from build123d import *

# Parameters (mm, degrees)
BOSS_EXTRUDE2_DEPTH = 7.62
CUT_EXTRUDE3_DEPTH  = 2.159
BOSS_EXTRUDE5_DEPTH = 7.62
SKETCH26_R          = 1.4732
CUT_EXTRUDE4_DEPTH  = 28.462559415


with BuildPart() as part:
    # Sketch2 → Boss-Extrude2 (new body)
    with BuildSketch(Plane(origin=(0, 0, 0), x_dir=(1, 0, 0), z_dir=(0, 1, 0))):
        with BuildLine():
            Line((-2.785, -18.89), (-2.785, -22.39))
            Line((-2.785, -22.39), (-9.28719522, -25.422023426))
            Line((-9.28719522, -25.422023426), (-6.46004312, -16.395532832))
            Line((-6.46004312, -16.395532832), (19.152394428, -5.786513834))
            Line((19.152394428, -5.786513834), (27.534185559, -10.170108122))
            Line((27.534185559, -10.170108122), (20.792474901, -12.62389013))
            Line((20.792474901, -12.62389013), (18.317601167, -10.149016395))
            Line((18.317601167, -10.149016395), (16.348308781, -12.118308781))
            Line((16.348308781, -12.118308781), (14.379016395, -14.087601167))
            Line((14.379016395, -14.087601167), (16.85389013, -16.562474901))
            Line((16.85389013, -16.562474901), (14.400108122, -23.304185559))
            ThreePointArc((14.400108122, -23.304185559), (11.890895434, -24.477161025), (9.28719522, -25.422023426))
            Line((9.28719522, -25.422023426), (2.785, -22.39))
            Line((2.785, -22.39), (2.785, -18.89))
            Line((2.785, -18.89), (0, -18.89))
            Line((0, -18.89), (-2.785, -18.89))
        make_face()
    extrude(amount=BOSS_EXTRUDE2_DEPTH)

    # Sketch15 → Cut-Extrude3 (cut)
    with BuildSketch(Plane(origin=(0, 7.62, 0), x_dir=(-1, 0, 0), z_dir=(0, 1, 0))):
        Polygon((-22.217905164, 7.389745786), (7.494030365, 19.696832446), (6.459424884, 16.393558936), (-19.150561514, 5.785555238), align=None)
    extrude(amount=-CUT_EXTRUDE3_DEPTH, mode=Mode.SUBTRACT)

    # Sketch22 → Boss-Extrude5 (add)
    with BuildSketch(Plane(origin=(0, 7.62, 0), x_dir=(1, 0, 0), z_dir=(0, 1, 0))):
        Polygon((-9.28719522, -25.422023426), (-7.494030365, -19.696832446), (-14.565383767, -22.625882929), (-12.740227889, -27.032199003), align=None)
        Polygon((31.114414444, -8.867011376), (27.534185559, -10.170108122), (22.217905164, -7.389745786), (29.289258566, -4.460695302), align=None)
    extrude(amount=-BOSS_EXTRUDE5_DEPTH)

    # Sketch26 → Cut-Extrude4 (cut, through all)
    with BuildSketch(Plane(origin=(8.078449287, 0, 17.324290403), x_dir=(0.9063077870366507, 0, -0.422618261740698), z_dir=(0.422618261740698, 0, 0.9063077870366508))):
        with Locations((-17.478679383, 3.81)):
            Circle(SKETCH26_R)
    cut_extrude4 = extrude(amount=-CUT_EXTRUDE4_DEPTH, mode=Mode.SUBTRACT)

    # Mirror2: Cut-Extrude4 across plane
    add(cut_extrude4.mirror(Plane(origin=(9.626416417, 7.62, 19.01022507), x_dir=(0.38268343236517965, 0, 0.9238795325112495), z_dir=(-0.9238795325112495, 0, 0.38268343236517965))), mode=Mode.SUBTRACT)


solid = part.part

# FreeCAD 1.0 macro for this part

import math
import FreeCAD as App
import Part
import Sketcher
from FreeCAD import Vector
Q = App.Units.Quantity

doc = App.newDocument("Part")
body = doc.addObject("PartDesign::Body", "Body")

sketch1 = body.newObject("Sketcher::SketchObject", "Sketch")
sketch1.AttachmentSupport = (doc.getObject("XZ_Plane"), [""])
sketch1.MapMode = "FlatFace"
sketch1.addGeometry([
    Part.LineSegment(Vector(-2.8, 22.4, 0), Vector(-2.8, 18.9, 0)),
    Part.LineSegment(Vector(-2.8, 18.9, 0), Vector(2.8, 18.9, 0)),
    Part.LineSegment(Vector(2.8, 18.9, 0), Vector(2.8, 22.4, 0)),
    Part.LineSegment(Vector(2.8, 22.4, 0), Vector(9.3, 25.4, 0)),
    Part.ArcOfCircle(Part.Circle(Vector(0, -4.2, 0), Vector(0, 0, 1), 31.1), math.radians(62.39), math.radians(72.61)),
    Part.LineSegment(Vector(14.4, 23.3, 0), Vector(16.9, 16.6, 0)),
    Part.LineSegment(Vector(16.9, 16.6, 0), Vector(14.4, 14.1, 0)),
    Part.LineSegment(Vector(14.4, 14.1, 0), Vector(18.3, 10.1, 0)),
    Part.LineSegment(Vector(18.3, 10.1, 0), Vector(20.8, 12.6, 0)),
    Part.LineSegment(Vector(20.8, 12.6, 0), Vector(27.5, 10.2, 0)),
    Part.LineSegment(Vector(27.5, 10.2, 0), Vector(19.2, 5.8, 0)),
    Part.LineSegment(Vector(19.2, 5.8, 0), Vector(-6.5, 16.4, 0)),
    Part.LineSegment(Vector(-6.5, 16.4, 0), Vector(-9.3, 25.4, 0)),
    Part.LineSegment(Vector(-9.3, 25.4, 0), Vector(-2.8, 22.4, 0)),
], False)
sketch1.addConstraint([
    Sketcher.Constraint("Coincident", 0, 2, 1, 1),
    Sketcher.Constraint("Coincident", 1, 2, 2, 1),
    Sketcher.Constraint("Coincident", 2, 2, 3, 1),
    Sketcher.Constraint("Coincident", 3, 2, 4, 2),
    Sketcher.Constraint("Coincident", 4, 1, 5, 1),
    Sketcher.Constraint("Coincident", 5, 2, 6, 1),
    Sketcher.Constraint("Coincident", 6, 2, 7, 1),
    Sketcher.Constraint("Coincident", 7, 2, 8, 1),
    Sketcher.Constraint("Coincident", 8, 2, 9, 1),
    Sketcher.Constraint("Coincident", 9, 2, 10, 1),
    Sketcher.Constraint("Coincident", 10, 2, 11, 1),
    Sketcher.Constraint("Coincident", 11, 2, 12, 1),
    Sketcher.Constraint("Coincident", 12, 2, 13, 1),
    Sketcher.Constraint("Coincident", 13, 2, 0, 1),
    Sketcher.Constraint("Vertical", 0),
    Sketcher.Constraint("Horizontal", 1),
    Sketcher.Constraint("Vertical", 2),
    Sketcher.Constraint("Symmetric", 3, 2, 12, 2, -2),
    Sketcher.Constraint("Symmetric", 2, 2, 13, 2, -2),
    Sketcher.Constraint("PointOnObject", 4, 3, -2),
    Sketcher.Constraint("Perpendicular", 6, 7),
    Sketcher.Constraint("Perpendicular", 7, 8),
    Sketcher.Constraint("Equal", 3, 5),
    Sketcher.Constraint("Equal", 6, 8),
    Sketcher.Constraint("Equal", 5, 9),
    Sketcher.Constraint("Equal", 10, 12),
    Sketcher.Constraint("Angle", 3, Q("25 deg")),
    Sketcher.Constraint("Angle", 5, Q("-70 deg")),
    Sketcher.Constraint("Angle", 6, Q("-135 deg")),
    Sketcher.Constraint("Angle", 9, Q("-20 deg")),
    Sketcher.Constraint("Angle", 11, Q("157.5 deg")),
    Sketcher.Constraint("DistanceX", 1, 1, 1, 2, Q("5.57 mm")),
    Sketcher.Constraint("DistanceY", 0, 2, 0, 1, Q("3.5 mm")),
    Sketcher.Constraint("Radius", 4, Q("31.072407 mm")),
    Sketcher.Constraint("Distance", 6, Q("3.5 mm")),
    Sketcher.Constraint("Distance", 7, Q("5.57 mm")),
    Sketcher.Constraint("DistanceY", 4, 3, -1, 1, Q("4.23 mm")),
    Sketcher.Constraint("DistanceY", -1, 1, 0, 2, Q("18.89 mm")),
    Sketcher.Constraint("DistanceY", -1, 1, 6, 2, Q("14.087601 mm")),
    Sketcher.Constraint("DistanceX", 10, 2, 8, 2, Q("1.64008 mm")),
    Sketcher.Constraint("DistanceY", 10, 2, 5, 2, Q("10.775961 mm")),
])
pad1 = body.newObject("PartDesign::Pad", "Pad")
pad1.Profile = sketch1
pad1.Length = Q("0.3 in")
pad1.Reversed = True

sketch2 = body.newObject("Sketcher::SketchObject", "Sketch001")
sketch2.AttachmentSupport = (doc.getObject("XZ_Plane"), [""])
sketch2.MapMode = "FlatFace"
sketch2.AttachmentOffset = App.Placement(Vector(0, 0, -0.3 * 25.4), App.Rotation())
sketch2.addGeometry([
    Part.LineSegment(Vector(-7.5, 19.7, 0), Vector(22.2, 7.4, 0)),
    Part.LineSegment(Vector(22.2, 7.4, 0), Vector(19.2, 5.8, 0)),
    Part.LineSegment(Vector(19.2, 5.8, 0), Vector(-6.5, 16.4, 0)),
    Part.LineSegment(Vector(-6.5, 16.4, 0), Vector(-7.5, 19.7, 0)),
], False)
sketch2.addConstraint([
    Sketcher.Constraint("Coincident", 0, 2, 1, 1),
    Sketcher.Constraint("Coincident", 1, 2, 2, 1),
    Sketcher.Constraint("Coincident", 2, 2, 3, 1),
    Sketcher.Constraint("Coincident", 3, 2, 0, 1),
    Sketcher.Constraint("Parallel", 0, 2),
    Sketcher.Constraint("Equal", 1, 3),
    Sketcher.Constraint("Angle", 0, Q("-22.5 deg")),
    Sketcher.Constraint("Distance", 2, Q("27.72005 mm")),
    Sketcher.Constraint("DistanceX", -1, 1, 1, 2, Q("19.150562 mm")),
    Sketcher.Constraint("DistanceY", -1, 1, 2, 2, Q("16.393559 mm")),
    Sketcher.Constraint("DistanceX", 3, 2, -1, 1, Q("7.49403 mm")),
    Sketcher.Constraint("DistanceY", 1, 2, 0, 2, Q("1.604191 mm")),
])
pocket1 = body.newObject("PartDesign::Pocket", "Pocket")
pocket1.Profile = sketch2
pocket1.Length = Q("0.085 in")
pocket1.Reversed = True

sketch3 = body.newObject("Sketcher::SketchObject", "Sketch002")
sketch3.AttachmentSupport = (doc.getObject("XZ_Plane"), [""])
sketch3.MapMode = "FlatFace"
sketch3.AttachmentOffset = App.Placement(Vector(0, 0, -0.3 * 25.4), App.Rotation())
sketch3.addGeometry([
    Part.LineSegment(Vector(-9.3, 25.4, 0), Vector(-7.5, 19.7, 0)),
    Part.LineSegment(Vector(-7.5, 19.7, 0), Vector(-14.6, 22.6, 0)),
    Part.LineSegment(Vector(-14.6, 22.6, 0), Vector(-12.7, 27, 0)),
    Part.LineSegment(Vector(-12.7, 27, 0), Vector(-9.3, 25.4, 0)),
    Part.LineSegment(Vector(27.5, 10.2, 0), Vector(31.1, 8.9, 0)),
    Part.LineSegment(Vector(31.1, 8.9, 0), Vector(29.3, 4.5, 0)),
    Part.LineSegment(Vector(29.3, 4.5, 0), Vector(22.2, 7.4, 0)),
    Part.LineSegment(Vector(22.2, 7.4, 0), Vector(27.5, 10.2, 0)),
], False)
sketch3.addConstraint([
    Sketcher.Constraint("Coincident", 0, 2, 1, 1),
    Sketcher.Constraint("Coincident", 1, 2, 2, 1),
    Sketcher.Constraint("Coincident", 2, 2, 3, 1),
    Sketcher.Constraint("Coincident", 3, 2, 0, 1),
    Sketcher.Constraint("Coincident", 4, 2, 5, 1),
    Sketcher.Constraint("Coincident", 5, 2, 6, 1),
    Sketcher.Constraint("Coincident", 6, 2, 7, 1),
    Sketcher.Constraint("Coincident", 7, 2, 4, 1),
    Sketcher.Constraint("Perpendicular", 1, 2),
    Sketcher.Constraint("Parallel", 2, 5),
    Sketcher.Constraint("Perpendicular", 5, 6),
    Sketcher.Constraint("Equal", 3, 4),
    Sketcher.Constraint("Equal", 2, 5),
    Sketcher.Constraint("Equal", 1, 6),
    Sketcher.Constraint("Equal", 0, 7),
    Sketcher.Constraint("Angle", 3, Q("-25 deg")),
    Sketcher.Constraint("Angle", 4, Q("-20 deg")),
    Sketcher.Constraint("Distance", 3, Q("0.15 in")),
    Sketcher.Constraint("DistanceY", -1, 1, 2, 2, Q("27.032199 mm")),
    Sketcher.Constraint("DistanceX", 1, 2, 4, 2, Q("45.679798 mm")),
    Sketcher.Constraint("DistanceX", 3, 2, 6, 2, Q("31.5051 mm")),
    Sketcher.Constraint("DistanceX", 0, 2, -1, 1, Q("7.49403 mm")),
    Sketcher.Constraint("DistanceY", -1, 1, 4, 2, Q("8.867011 mm")),
    Sketcher.Constraint("DistanceX", -1, 1, 5, 2, Q("29.289259 mm")),
])
pad2 = body.newObject("PartDesign::Pad", "Pad001")
pad2.Profile = sketch3
pad2.Length = Q("0.3 in")

sketch4 = body.newObject("Sketcher::SketchObject", "Sketch003")
sketch4.Placement = App.Placement(Vector(8.078449, 0, 17.32429), App.Rotation(Vector(0.906307787, 0, -0.422618262), Vector(0, 1, 0), Vector(0.422618262, 0, 0.906307787), "ZXY"))
sketch4.addGeometry(Part.Circle(Vector(-17.5, 3.8, 0), Vector(0, 0, 1), 1.5), False)
sketch4.addConstraint([
    Sketcher.Constraint("Diameter", 0, Q("0.116 in")),
    Sketcher.Constraint("DistanceY", -1, 1, 0, 3, Q("0.15 in")),
    Sketcher.Constraint("DistanceX", 0, 3, -1, 1, Q("17.478679 mm")),
])
pocket2 = body.newObject("PartDesign::Pocket", "Pocket001")
pocket2.Profile = sketch4
pocket2.Type = "ThroughAll"
doc.recompute()

datumplane = body.newObject("PartDesign::Plane", "DatumPlane")
datumplane.Placement = App.Placement(Vector(1.495531, 0, -0.619469), App.Rotation(Vector(-0.382683432, 0, -0.923879533), Vector(0, -1, 0), Vector(-0.923879533, 0, 0.382683432), "ZXY"))
mirrored = body.newObject("PartDesign::Mirrored", "Mirrored")
mirrored.Originals = [pocket2]
mirrored.MirrorPlane = (datumplane, [""])
body.Tip = mirrored

doc.recompute()
